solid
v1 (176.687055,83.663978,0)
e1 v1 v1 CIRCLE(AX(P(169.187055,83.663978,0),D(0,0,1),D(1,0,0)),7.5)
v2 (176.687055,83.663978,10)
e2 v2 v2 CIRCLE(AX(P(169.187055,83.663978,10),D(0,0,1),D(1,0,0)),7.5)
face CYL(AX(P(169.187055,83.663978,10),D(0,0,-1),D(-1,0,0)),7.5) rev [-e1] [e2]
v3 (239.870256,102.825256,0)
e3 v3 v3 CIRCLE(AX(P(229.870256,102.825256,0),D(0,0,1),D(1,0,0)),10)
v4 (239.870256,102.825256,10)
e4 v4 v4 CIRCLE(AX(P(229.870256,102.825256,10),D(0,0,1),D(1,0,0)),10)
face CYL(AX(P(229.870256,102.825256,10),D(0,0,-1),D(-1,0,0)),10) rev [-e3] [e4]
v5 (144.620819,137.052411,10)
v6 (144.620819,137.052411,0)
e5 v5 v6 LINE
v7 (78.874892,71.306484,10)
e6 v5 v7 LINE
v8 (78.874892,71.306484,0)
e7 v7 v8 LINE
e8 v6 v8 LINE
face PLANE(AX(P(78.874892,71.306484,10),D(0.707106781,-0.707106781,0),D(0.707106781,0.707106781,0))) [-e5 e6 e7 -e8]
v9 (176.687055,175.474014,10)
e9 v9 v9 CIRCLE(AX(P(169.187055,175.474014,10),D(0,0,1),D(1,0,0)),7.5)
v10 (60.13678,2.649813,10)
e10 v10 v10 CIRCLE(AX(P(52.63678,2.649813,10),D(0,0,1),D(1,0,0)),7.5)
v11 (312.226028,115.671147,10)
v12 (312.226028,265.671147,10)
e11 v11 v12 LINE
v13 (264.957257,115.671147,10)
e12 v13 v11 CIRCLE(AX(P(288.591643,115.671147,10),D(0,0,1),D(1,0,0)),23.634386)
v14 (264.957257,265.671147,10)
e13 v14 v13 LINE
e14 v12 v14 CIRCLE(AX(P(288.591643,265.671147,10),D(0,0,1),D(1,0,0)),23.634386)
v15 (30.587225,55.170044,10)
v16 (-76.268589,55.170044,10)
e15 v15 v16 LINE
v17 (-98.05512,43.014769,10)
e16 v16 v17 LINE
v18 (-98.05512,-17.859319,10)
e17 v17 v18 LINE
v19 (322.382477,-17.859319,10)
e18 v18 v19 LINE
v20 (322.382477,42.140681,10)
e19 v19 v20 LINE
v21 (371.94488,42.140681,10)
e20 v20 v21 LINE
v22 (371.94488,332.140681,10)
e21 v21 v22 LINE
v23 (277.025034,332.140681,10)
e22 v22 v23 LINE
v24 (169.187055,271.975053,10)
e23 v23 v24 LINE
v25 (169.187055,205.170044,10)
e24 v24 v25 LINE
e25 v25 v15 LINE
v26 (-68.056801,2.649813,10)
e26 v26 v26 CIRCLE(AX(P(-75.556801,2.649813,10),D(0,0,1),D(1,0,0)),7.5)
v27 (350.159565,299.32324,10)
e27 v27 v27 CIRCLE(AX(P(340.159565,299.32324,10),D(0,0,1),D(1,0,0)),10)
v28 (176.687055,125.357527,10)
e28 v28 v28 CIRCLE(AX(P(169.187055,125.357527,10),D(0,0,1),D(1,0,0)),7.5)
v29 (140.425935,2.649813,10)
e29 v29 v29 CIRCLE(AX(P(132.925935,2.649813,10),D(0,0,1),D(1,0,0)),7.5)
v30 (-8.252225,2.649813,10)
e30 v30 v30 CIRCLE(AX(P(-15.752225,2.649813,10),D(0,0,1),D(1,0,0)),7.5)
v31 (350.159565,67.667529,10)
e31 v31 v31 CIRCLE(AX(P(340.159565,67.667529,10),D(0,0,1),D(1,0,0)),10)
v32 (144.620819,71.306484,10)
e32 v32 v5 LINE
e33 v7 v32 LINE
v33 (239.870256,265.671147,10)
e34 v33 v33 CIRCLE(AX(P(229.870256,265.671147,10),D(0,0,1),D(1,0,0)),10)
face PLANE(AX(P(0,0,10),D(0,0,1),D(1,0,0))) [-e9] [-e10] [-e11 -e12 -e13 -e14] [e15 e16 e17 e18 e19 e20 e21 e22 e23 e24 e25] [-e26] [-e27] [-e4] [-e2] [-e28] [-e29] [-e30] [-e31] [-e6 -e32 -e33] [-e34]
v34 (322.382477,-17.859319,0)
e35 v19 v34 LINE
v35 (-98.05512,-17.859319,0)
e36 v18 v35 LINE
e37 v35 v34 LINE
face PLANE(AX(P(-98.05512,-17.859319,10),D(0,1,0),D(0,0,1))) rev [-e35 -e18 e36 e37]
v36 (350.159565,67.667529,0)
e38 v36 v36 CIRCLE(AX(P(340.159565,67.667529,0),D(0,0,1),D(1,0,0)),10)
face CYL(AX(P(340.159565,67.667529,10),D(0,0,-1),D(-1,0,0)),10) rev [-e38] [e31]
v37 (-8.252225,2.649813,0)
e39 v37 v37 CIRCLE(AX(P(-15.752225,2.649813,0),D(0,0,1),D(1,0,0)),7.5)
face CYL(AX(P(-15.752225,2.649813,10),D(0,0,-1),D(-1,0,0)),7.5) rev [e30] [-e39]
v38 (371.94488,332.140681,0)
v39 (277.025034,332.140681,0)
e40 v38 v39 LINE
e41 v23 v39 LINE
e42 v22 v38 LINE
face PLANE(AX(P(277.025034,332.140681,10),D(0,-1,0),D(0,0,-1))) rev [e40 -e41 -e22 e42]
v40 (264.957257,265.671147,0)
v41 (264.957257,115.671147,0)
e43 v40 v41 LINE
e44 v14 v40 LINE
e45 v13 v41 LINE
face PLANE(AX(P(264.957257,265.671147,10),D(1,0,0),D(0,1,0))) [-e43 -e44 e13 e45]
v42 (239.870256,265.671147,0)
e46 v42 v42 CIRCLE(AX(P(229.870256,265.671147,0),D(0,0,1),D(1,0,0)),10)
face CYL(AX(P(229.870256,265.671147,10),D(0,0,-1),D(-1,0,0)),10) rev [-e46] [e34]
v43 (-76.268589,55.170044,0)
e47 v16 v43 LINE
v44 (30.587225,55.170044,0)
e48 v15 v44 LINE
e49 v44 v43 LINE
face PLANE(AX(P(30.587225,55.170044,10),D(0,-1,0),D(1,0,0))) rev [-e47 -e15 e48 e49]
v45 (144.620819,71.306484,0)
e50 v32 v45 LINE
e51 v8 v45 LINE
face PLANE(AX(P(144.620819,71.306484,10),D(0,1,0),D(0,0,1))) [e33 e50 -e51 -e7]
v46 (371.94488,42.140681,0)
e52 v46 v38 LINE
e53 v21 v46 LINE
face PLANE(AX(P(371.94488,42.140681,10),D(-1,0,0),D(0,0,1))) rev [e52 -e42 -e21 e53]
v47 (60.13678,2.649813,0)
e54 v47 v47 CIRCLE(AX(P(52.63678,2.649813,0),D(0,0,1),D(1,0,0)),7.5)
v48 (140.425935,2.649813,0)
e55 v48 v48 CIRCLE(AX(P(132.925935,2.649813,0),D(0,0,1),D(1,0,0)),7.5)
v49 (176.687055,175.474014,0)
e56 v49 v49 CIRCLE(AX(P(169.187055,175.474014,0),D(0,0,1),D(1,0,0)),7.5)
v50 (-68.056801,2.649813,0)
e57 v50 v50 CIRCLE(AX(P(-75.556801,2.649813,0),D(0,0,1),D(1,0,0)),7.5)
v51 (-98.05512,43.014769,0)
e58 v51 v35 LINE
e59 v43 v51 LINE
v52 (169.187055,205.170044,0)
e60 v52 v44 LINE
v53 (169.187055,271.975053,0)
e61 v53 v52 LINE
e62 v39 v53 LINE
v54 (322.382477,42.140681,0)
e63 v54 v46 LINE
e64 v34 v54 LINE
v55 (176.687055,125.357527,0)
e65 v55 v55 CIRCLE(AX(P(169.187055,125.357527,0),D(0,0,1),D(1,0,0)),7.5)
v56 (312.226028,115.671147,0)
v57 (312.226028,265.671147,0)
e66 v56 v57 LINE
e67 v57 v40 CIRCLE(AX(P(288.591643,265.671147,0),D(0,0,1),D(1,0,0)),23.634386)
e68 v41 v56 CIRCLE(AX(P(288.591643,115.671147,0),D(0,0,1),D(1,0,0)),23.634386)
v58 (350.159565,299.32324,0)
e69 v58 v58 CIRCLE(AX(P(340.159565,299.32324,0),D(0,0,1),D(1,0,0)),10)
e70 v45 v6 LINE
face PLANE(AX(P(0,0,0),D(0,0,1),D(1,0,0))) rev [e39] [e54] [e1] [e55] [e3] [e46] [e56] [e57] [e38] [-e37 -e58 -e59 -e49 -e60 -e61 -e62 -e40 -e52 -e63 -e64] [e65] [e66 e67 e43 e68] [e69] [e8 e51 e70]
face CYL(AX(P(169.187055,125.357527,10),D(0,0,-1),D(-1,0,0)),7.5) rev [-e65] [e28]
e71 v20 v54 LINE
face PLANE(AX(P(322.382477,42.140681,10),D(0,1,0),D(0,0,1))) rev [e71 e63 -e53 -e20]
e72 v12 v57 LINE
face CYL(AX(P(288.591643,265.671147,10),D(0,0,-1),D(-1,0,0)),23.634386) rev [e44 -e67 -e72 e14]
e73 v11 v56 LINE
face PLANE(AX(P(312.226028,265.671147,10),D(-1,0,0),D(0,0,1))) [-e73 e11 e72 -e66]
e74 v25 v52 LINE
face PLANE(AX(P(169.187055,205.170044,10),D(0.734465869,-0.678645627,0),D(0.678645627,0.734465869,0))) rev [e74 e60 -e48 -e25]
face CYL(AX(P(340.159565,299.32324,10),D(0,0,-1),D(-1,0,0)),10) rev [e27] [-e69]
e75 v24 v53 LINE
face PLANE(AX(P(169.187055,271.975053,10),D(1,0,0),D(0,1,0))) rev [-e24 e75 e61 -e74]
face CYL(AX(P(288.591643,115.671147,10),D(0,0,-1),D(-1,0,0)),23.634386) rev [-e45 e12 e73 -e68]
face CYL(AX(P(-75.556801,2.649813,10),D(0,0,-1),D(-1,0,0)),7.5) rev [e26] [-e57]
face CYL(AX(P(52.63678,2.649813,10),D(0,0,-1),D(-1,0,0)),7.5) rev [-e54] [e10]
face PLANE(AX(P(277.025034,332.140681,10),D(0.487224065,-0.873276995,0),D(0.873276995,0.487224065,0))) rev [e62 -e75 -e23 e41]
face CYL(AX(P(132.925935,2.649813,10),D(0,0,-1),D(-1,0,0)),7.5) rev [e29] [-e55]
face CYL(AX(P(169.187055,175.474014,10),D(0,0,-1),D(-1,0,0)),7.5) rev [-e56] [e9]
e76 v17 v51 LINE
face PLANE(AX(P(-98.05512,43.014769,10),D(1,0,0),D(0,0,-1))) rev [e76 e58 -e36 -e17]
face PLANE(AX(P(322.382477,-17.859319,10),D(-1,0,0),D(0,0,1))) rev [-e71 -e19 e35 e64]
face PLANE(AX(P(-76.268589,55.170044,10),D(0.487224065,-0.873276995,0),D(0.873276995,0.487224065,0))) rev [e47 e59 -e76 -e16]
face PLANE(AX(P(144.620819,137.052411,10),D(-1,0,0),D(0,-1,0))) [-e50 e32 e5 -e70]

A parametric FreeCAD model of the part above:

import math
import FreeCAD as App
import Part
import Sketcher
from FreeCAD import Vector

doc = App.newDocument("Part")
body = doc.addObject("PartDesign::Body", "Body")

# Sketch on XY plane
sketch1 = body.newObject("Sketcher::SketchObject", "Sketch")
sketch1.AttachmentSupport = (doc.getObject("XY_Plane"), [""])
sketch1.MapMode = "FlatFace"
sketch1.addGeometry([
    Part.LineSegment(Vector(-98, -18, 0), Vector(322, -18, 0)),  # 0
    Part.LineSegment(Vector(322, -18, 0), Vector(322, 42, 0)),  # 1
    Part.LineSegment(Vector(322, 42, 0), Vector(372, 42, 0)),  # 2
    Part.LineSegment(Vector(372, 42, 0), Vector(372, 332, 0)),  # 3
    Part.LineSegment(Vector(372, 332, 0), Vector(277, 332, 0)),  # 4
    Part.LineSegment(Vector(277, 332, 0), Vector(169, 272, 0)),  # 5
    Part.LineSegment(Vector(169, 272, 0), Vector(169, 205, 0)),  # 6
    Part.LineSegment(Vector(169, 205, 0), Vector(31, 55, 0)),  # 7
    Part.LineSegment(Vector(31, 55, 0), Vector(-76, 55, 0)),  # 8
    Part.LineSegment(Vector(-76, 55, 0), Vector(-98, 43, 0)),  # 9
    Part.LineSegment(Vector(-98, 43, 0), Vector(-98, -18, 0)),  # 10
    Part.Circle(Vector(-76, 3, 0), Vector(0, 0, 1), 8),  # 11
    Part.Circle(Vector(-16, 3, 0), Vector(0, 0, 1), 8),  # 12
    Part.Circle(Vector(53, 3, 0), Vector(0, 0, 1), 8),  # 13
    Part.Circle(Vector(133, 3, 0), Vector(0, 0, 1), 8),  # 14
    Part.LineSegment(Vector(145, 71, 0), Vector(79, 71, 0)),  # 15
    Part.LineSegment(Vector(79, 71, 0), Vector(145, 137, 0)),  # 16
    Part.LineSegment(Vector(145, 137, 0), Vector(145, 71, 0)),  # 17
    Part.Circle(Vector(340, 68, 0), Vector(0, 0, 1), 10),  # 18
    Part.Circle(Vector(169, 84, 0), Vector(0, 0, 1), 8),  # 19
    Part.Circle(Vector(230, 103, 0), Vector(0, 0, 1), 10),  # 20
    Part.Circle(Vector(169, 125, 0), Vector(0, 0, 1), 8),  # 21
    Part.Circle(Vector(169, 175, 0), Vector(0, 0, 1), 8),  # 22
    Part.ArcOfCircle(Part.Circle(Vector(289, 266, 0), Vector(0, 0, 1), 24), math.radians(0), math.radians(180)),  # 23
    Part.LineSegment(Vector(312, 266, 0), Vector(312, 116, 0)),  # 24
    Part.ArcOfCircle(Part.Circle(Vector(289, 116, 0), Vector(0, 0, 1), 24), math.radians(180), math.radians(360)),  # 25
    Part.LineSegment(Vector(265, 116, 0), Vector(265, 266, 0)),  # 26
    Part.Circle(Vector(230, 266, 0), Vector(0, 0, 1), 10),  # 27
    Part.Circle(Vector(340, 299, 0), Vector(0, 0, 1), 10),  # 28
], False)
sketch1.addConstraint([
    Sketcher.Constraint("Coincident", 0, 2, 1, 1),
    Sketcher.Constraint("Coincident", 1, 2, 2, 1),
    Sketcher.Constraint("Coincident", 2, 2, 3, 1),
    Sketcher.Constraint("Coincident", 3, 2, 4, 1),
    Sketcher.Constraint("Coincident", 4, 2, 5, 1),
    Sketcher.Constraint("Coincident", 5, 2, 6, 1),
    Sketcher.Constraint("Coincident", 6, 2, 7, 1),
    Sketcher.Constraint("Coincident", 7, 2, 8, 1),
    Sketcher.Constraint("Coincident", 8, 2, 9, 1),
    Sketcher.Constraint("Coincident", 9, 2, 10, 1),
    Sketcher.Constraint("Coincident", 10, 2, 0, 1),
    Sketcher.Constraint("Coincident", 15, 2, 16, 1),
    Sketcher.Constraint("Coincident", 16, 2, 17, 1),
    Sketcher.Constraint("Coincident", 17, 2, 15, 1),
    Sketcher.Constraint("Tangent", 23, 1, 24, 1),
    Sketcher.Constraint("Tangent", 24, 2, 25, 2),
    Sketcher.Constraint("Tangent", 25, 1, 26, 1),
    Sketcher.Constraint("Tangent", 26, 2, 23, 2),
    Sketcher.Constraint("Horizontal", 0),
    Sketcher.Constraint("Vertical", 1),
    Sketcher.Constraint("Horizontal", 2),
    Sketcher.Constraint("Vertical", 3),
    Sketcher.Constraint("Horizontal", 4),
    Sketcher.Constraint("Vertical", 6),
    Sketcher.Constraint("Horizontal", 8),
    Sketcher.Constraint("Vertical", 10),
    Sketcher.Constraint("Horizontal", 15),
    Sketcher.Constraint("Vertical", 17),
    Sketcher.Constraint("Vertical", 24),
    Sketcher.Constraint("Vertical", 26),
    Sketcher.Constraint("Equal", 11, 12),
    Sketcher.Constraint("Equal", 12, 13),
    Sketcher.Constraint("Equal", 13, 14),
    Sketcher.Constraint("Equal", 14, 19),
    Sketcher.Constraint("Equal", 18, 20),
    Sketcher.Constraint("Equal", 19, 21),
    Sketcher.Constraint("Equal", 21, 22),
    Sketcher.Constraint("Equal", 20, 27),
    Sketcher.Constraint("Equal", 27, 28),
    Sketcher.Constraint("Parallel", 5, 9),
    Sketcher.Constraint("Horizontal", 11, 3, 12, 3),
    Sketcher.Constraint("Horizontal", 12, 3, 13, 3),
    Sketcher.Constraint("Horizontal", 13, 3, 14, 3),
    Sketcher.Constraint("Horizontal", 23, 3, 27, 3),
    Sketcher.Constraint("Vertical", 19, 3, 21, 3),
    Sketcher.Constraint("Vertical", 21, 3, 22, 3),
    Sketcher.Constraint("Vertical", 20, 3, 27, 3),
    Sketcher.Constraint("Vertical", 18, 3, 28, 3),
    Sketcher.Constraint("Vertical", 22, 3, 5, 2),
    Sketcher.Constraint("Equal", 15, 17),
    Sketcher.Constraint("Diameter", 11, 15.0),
    Sketcher.Constraint("Diameter", 18, 20.0),
    Sketcher.Constraint("DistanceY", 1, 1, 1, 2, 60.0),
    Sketcher.Constraint("DistanceY", 3, 1, 3, 2, 290.0),
    Sketcher.Constraint("DistanceY", 24, 2, 24, 1, 150.0),
    Sketcher.Constraint("DistanceY", 18, 3, 21, 3, 57.689998),
    Sketcher.Constraint("Radius", 23, 23.634386),
    Sketcher.Constraint("DistanceX", 20, 3, 25, 1, 35.087001),
    Sketcher.Constraint("DistanceY", 6, 2, 6, 1, 66.805009),
    Sketcher.Constraint("DistanceX", 11, 3, -1, 1, 75.556801),
    Sketcher.Constraint("DistanceX", 19, 3, 20, 3, 60.683201),
    Sketcher.Constraint("DistanceY", 14, 3, 22, 3, 172.824201),
    Sketcher.Constraint("DistanceX", 9, 2, 13, 3, 150.6919),
    Sketcher.Constraint("Distance", 5, 123.486569),
    Sketcher.Constraint("Distance", 7, 204.230048),
    Sketcher.Constraint("Distance", 9, 24.948019),
    Sketcher.Constraint("Distance", 16, 92.978782),
    Sketcher.Constraint("DistanceX", 0, 1, 0, 2, 420.437597),
    Sketcher.Constraint("DistanceX", 2, 1, 2, 2, 49.562403),
    Sketcher.Constraint("DistanceX", 4, 2, 4, 1, 94.919846),
    Sketcher.Constraint("DistanceX", 8, 2, 8, 1, 106.855814),
    Sketcher.Constraint("DistanceY", 10, 2, 10, 1, 60.874088),
    Sketcher.Constraint("DistanceX", -1, 1, 13, 3, 52.63678),
    Sketcher.Constraint("DistanceY", -1, 1, 18, 3, 67.667529),
    Sketcher.Constraint("DistanceY", -1, 1, 19, 3, 83.663978),
    Sketcher.Constraint("DistanceY", -1, 1, 28, 3, 299.32324),
    Sketcher.Constraint("DistanceY", 0, 2, -1, 1, 17.859319),
    Sketcher.Constraint("DistanceX", -1, 1, 15, 2, 78.874892),
    Sketcher.Constraint("DistanceY", -1, 1, 16, 2, 137.052411),
    Sketcher.Constraint("DistanceX", 12, 3, 14, 3, 148.678159),
    Sketcher.Constraint("DistanceX", 14, 3, 18, 3, 207.23363),
    Sketcher.Constraint("DistanceX", 14, 3, 19, 3, 36.26112),
    Sketcher.Constraint("DistanceY", 20, 3, 21, 3, 22.532271),
    Sketcher.Constraint("DistanceY", 20, 3, 22, 3, 72.648758),
    Sketcher.Constraint("DistanceY", 20, 3, 23, 3, 162.845891),
])
pad1 = body.newObject("PartDesign::Pad", "Pad")
pad1.Profile = sketch1
pad1.Length = 10

doc.recompute()
